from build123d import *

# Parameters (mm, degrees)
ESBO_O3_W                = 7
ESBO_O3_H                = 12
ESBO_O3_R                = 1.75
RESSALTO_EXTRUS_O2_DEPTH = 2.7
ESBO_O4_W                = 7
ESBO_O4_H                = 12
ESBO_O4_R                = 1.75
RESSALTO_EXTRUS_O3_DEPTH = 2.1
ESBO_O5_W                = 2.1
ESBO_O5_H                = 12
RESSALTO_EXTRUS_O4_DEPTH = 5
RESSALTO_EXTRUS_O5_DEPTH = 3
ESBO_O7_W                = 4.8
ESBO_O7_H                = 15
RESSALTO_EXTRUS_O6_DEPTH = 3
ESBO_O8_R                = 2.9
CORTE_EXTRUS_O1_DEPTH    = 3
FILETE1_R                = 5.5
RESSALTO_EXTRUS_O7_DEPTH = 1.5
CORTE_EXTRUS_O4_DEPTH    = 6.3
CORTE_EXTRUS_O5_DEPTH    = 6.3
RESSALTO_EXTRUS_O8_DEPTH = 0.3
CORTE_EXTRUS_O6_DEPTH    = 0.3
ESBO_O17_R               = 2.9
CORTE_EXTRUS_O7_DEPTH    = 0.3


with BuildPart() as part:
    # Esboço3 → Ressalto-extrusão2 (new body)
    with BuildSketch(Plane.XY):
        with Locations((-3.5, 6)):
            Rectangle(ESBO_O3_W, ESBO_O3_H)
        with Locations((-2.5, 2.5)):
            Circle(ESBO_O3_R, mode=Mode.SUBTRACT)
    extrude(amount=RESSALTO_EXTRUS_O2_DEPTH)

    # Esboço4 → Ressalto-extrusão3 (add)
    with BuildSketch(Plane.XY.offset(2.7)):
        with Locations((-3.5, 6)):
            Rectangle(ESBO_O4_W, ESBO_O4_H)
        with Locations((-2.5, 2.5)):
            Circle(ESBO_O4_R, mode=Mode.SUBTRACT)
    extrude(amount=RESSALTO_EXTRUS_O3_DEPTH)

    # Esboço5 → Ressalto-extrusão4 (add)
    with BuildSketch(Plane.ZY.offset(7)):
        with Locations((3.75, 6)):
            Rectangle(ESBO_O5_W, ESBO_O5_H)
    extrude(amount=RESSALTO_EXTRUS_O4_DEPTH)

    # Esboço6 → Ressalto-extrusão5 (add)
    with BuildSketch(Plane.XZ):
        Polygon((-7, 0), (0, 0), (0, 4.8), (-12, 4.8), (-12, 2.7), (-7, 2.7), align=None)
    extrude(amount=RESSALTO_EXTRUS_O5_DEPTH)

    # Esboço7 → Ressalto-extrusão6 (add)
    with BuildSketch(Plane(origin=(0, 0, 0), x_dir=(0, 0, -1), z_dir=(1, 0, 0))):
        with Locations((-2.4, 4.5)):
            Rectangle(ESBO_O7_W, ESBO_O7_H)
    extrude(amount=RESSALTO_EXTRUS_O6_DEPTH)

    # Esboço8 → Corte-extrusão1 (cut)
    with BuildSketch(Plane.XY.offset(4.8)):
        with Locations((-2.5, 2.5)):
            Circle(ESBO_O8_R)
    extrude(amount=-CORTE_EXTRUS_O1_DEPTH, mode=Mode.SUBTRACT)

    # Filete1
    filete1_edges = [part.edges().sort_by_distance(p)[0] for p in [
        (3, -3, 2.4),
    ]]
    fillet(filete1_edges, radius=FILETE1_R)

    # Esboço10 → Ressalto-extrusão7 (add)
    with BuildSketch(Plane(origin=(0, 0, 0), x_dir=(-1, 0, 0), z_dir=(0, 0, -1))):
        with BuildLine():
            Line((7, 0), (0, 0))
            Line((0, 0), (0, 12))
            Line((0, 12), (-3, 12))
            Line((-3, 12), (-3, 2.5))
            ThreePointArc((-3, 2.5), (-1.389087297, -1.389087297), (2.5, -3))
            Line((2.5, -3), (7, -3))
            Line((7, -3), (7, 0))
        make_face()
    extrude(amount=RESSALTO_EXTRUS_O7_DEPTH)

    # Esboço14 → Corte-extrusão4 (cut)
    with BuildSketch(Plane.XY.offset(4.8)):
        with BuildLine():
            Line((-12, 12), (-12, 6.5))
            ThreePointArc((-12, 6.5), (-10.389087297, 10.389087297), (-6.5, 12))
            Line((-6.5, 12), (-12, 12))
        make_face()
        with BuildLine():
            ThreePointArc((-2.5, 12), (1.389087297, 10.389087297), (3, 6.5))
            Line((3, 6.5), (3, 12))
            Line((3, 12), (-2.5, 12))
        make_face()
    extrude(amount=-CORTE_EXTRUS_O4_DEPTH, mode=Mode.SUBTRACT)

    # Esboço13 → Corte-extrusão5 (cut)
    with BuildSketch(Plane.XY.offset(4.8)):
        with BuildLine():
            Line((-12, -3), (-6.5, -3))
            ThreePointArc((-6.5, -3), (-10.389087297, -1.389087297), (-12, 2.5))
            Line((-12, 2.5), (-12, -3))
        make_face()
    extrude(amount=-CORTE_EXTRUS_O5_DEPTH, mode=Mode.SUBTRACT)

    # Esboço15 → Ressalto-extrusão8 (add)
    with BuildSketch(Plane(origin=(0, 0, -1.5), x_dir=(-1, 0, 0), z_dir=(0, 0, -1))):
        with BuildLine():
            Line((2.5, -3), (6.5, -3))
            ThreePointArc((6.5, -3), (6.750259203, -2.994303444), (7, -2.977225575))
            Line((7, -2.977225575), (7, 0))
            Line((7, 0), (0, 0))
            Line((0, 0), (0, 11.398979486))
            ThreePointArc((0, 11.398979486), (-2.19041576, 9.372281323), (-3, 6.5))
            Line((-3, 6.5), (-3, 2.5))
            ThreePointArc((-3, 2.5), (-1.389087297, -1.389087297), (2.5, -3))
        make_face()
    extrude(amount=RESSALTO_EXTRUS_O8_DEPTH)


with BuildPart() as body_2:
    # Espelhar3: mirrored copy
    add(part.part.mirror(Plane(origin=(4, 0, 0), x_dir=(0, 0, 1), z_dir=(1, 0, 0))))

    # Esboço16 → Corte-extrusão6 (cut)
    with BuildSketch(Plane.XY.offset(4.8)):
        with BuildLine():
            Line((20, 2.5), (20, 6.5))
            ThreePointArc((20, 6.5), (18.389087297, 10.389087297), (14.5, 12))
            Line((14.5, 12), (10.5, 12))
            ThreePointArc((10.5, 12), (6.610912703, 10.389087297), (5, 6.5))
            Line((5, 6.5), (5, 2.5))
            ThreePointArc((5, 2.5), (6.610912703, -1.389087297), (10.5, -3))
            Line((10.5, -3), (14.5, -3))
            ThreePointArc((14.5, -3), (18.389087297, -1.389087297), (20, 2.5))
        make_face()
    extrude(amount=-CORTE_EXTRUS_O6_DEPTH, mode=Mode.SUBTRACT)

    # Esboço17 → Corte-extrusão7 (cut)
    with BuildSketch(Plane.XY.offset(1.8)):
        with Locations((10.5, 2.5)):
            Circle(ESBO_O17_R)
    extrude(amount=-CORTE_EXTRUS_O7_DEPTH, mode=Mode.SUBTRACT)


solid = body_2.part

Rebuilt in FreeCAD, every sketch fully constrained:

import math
import FreeCAD as App
import Part
import Sketcher

V = App.Vector
Q = App.Units.Quantity


def edges_at(feature, points):
    """Names of the edges that pass closest to the given points."""
    edges = feature.Shape.Edges
    near = lambda p: min(range(len(edges)), key=lambda i: edges[i].distToShape(Part.Vertex(*p))[0])
    return sorted({f"Edge{near(p) + 1}" for p in points})

doc = App.newDocument("Part")
params = doc.addObject("Spreadsheet::Sheet", "Params")
for row, (alias, value) in enumerate([
    ("sketch1_diameter", "3.5 mm"),
    ("sketch1_width", "7 mm"),
    ("sketch1_height", "12 mm"),
    ("pad1_length", "2.7 mm"),
    ("sketch2_diameter", "3.5 mm"),
    ("sketch2_width", "7 mm"),
    ("sketch2_height", "12 mm"),
    ("pad2_length", "2.1 mm"),
    ("sketch3_width", "12 mm"),
    ("sketch3_height", "2.1 mm"),
    ("pad3_length", "5 mm"),
    ("sketch4_width", "7 mm"),
    ("sketch4_width2", "12 mm"),
    ("sketch4_height", "4.8 mm"),
    ("sketch4_height2", "2.1 mm"),
    ("pad4_length", "3 mm"),
    ("sketch5_width", "15 mm"),
    ("sketch5_height", "4.8 mm"),
    ("pad5_length", "3 mm"),
    ("sketch6_diameter", "5.8 mm"),
    ("pocket1_length", "3 mm"),
    ("fillet_radius", "5.5 mm"),
    ("sketch7_radius", "5.5 mm"),
    ("sketch7_width", "7 mm"),
    ("sketch7_width2", "3 mm"),
    ("sketch7_height", "12 mm"),
    ("pad6_length", "1.5 mm"),
    ("sketch8_radius", "5.5 mm"),
    ("pocket2_length", "6.3 mm"),
    ("sketch9_radius", "5.5 mm"),
    ("pocket3_length", "6.3 mm"),
    ("sketch10_radius", "5.5 mm"),
    ("sketch10_width", "4 mm"),
    ("sketch10_width2", "7 mm"),
    ("pad7_length", "0.3 mm"),
    ("sketch11_radius", "5.5 mm"),
    ("sketch11_width", "4 mm"),
    ("pocket4_length", "0.3 mm"),
    ("sketch12_diameter", "5.8 mm"),
    ("pocket5_length", "0.3 mm"),
], start=1):
    params.set(f"A{row}", alias)
    params.set(f"B{row}", "=" + value)
    params.setAlias(f"B{row}", alias)

body = doc.addObject("PartDesign::Body", "Body")

sketch1 = body.newObject("Sketcher::SketchObject", "Sketch")
sketch1.AttachmentSupport = (doc.getObject("XY_Plane"), [""])
sketch1.MapMode = "FlatFace"
sketch1.addGeometry([
    Part.LineSegment(V(-7, 12, 0), V(-7, 0, 0)),
    Part.LineSegment(V(-7, 0, 0), V(0, 0, 0)),
    Part.LineSegment(V(0, 0, 0), V(0, 12, 0)),
    Part.LineSegment(V(0, 12, 0), V(-7, 12, 0)),
    Part.Circle(V(-2.5, 2.5, 0), V(0, 0, 1), 1.8),
], False)
sketch1.addConstraint([
    Sketcher.Constraint("Coincident", 0, 2, 1, 1),
    Sketcher.Constraint("Coincident", 1, 2, 2, 1),
    Sketcher.Constraint("Coincident", 2, 2, 3, 1),
    Sketcher.Constraint("Coincident", 3, 2, 0, 1),
    Sketcher.Constraint("Vertical", 0),
    Sketcher.Constraint("Horizontal", 1),
    Sketcher.Constraint("Vertical", 2),
    Sketcher.Constraint("Horizontal", 3),
    Sketcher.Constraint("Coincident", 1, 2, -1, 1),
    Sketcher.Constraint("Diameter", 4, Q("3.5 mm")),
    Sketcher.Constraint("DistanceX", 1, 1, 1, 2, Q("7 mm")),
    Sketcher.Constraint("DistanceY", 0, 2, 0, 1, Q("12 mm")),
    Sketcher.Constraint("DistanceX", 4, 3, -1, 1, Q("2.5 mm")),
    Sketcher.Constraint("DistanceY", -1, 1, 4, 3, Q("2.5 mm")),
])
sketch1.setExpression("Constraints[9]", "Params.sketch1_diameter")
sketch1.setExpression("Constraints[10]", "Params.sketch1_width")
sketch1.setExpression("Constraints[11]", "Params.sketch1_height")
pad1 = body.newObject("PartDesign::Pad", "Pad")
pad1.Profile = sketch1
pad1.setExpression("Length", "Params.pad1_length")

sketch2 = body.newObject("Sketcher::SketchObject", "Sketch001")
sketch2.AttachmentSupport = (doc.getObject("XY_Plane"), [""])
sketch2.MapMode = "FlatFace"
sketch2.AttachmentOffset = App.Placement(V(0, 0, 2.7), App.Rotation())
sketch2.addGeometry([
    Part.LineSegment(V(-7, 12, 0), V(-7, 0, 0)),
    Part.LineSegment(V(-7, 0, 0), V(0, 0, 0)),
    Part.LineSegment(V(0, 0, 0), V(0, 12, 0)),
    Part.LineSegment(V(0, 12, 0), V(-7, 12, 0)),
    Part.Circle(V(-2.5, 2.5, 0), V(0, 0, 1), 1.8),
], False)
sketch2.addConstraint([
    Sketcher.Constraint("Coincident", 0, 2, 1, 1),
    Sketcher.Constraint("Coincident", 1, 2, 2, 1),
    Sketcher.Constraint("Coincident", 2, 2, 3, 1),
    Sketcher.Constraint("Coincident", 3, 2, 0, 1),
    Sketcher.Constraint("Vertical", 0),
    Sketcher.Constraint("Horizontal", 1),
    Sketcher.Constraint("Vertical", 2),
    Sketcher.Constraint("Horizontal", 3),
    Sketcher.Constraint("Coincident", 1, 2, -1, 1),
    Sketcher.Constraint("Diameter", 4, Q("3.5 mm")),
    Sketcher.Constraint("DistanceX", 1, 1, 1, 2, Q("7 mm")),
    Sketcher.Constraint("DistanceY", 0, 2, 0, 1, Q("12 mm")),
    Sketcher.Constraint("DistanceX", 4, 3, -1, 1, Q("2.5 mm")),
    Sketcher.Constraint("DistanceY", -1, 1, 4, 3, Q("2.5 mm")),
])
sketch2.setExpression("Constraints[9]", "Params.sketch2_diameter")
sketch2.setExpression("Constraints[10]", "Params.sketch2_width")
sketch2.setExpression("Constraints[11]", "Params.sketch2_height")
pad2 = body.newObject("PartDesign::Pad", "Pad001")
pad2.Profile = sketch2
pad2.setExpression("Length", "Params.pad2_length")

sketch3 = body.newObject("Sketcher::SketchObject", "Sketch002")
sketch3.AttachmentSupport = (doc.getObject("YZ_Plane"), [""])
sketch3.MapMode = "FlatFace"
sketch3.AttachmentOffset = App.Placement(V(0, 0, -7), App.Rotation())
sketch3.addGeometry([
    Part.LineSegment(V(12, 2.7, 0), V(0, 2.7, 0)),
    Part.LineSegment(V(0, 2.7, 0), V(0, 4.8, 0)),
    Part.LineSegment(V(0, 4.8, 0), V(12, 4.8, 0)),
    Part.LineSegment(V(12, 4.8, 0), V(12, 2.7, 0)),
], False)
sketch3.addConstraint([
    Sketcher.Constraint("Coincident", 0, 2, 1, 1),
    Sketcher.Constraint("Coincident", 1, 2, 2, 1),
    Sketcher.Constraint("Coincident", 2, 2, 3, 1),
    Sketcher.Constraint("Coincident", 3, 2, 0, 1),
    Sketcher.Constraint("Horizontal", 0),
    Sketcher.Constraint("Vertical", 1),
    Sketcher.Constraint("Horizontal", 2),
    Sketcher.Constraint("Vertical", 3),
    Sketcher.Constraint("PointOnObject", 0, 2, -2),
    Sketcher.Constraint("DistanceX", 0, 2, 0, 1, Q("12 mm")),
    Sketcher.Constraint("DistanceY", 1, 1, 1, 2, Q("2.1 mm")),
    Sketcher.Constraint("DistanceY", -1, 1, 0, 2, Q("2.7 mm")),
])
sketch3.setExpression("Constraints[9]", "Params.sketch3_width")
sketch3.setExpression("Constraints[10]", "Params.sketch3_height")
pad3 = body.newObject("PartDesign::Pad", "Pad002")
pad3.Profile = sketch3
pad3.setExpression("Length", "Params.pad3_length")
pad3.Reversed = True

sketch4 = body.newObject("Sketcher::SketchObject", "Sketch003")
sketch4.AttachmentSupport = (doc.getObject("XZ_Plane"), [""])
sketch4.MapMode = "FlatFace"
sketch4.addGeometry([
    Part.LineSegment(V(-7, 0, 0), V(0, 0, 0)),
    Part.LineSegment(V(0, 0, 0), V(0, 4.8, 0)),
    Part.LineSegment(V(0, 4.8, 0), V(-12, 4.8, 0)),
    Part.LineSegment(V(-12, 4.8, 0), V(-12, 2.7, 0)),
    Part.LineSegment(V(-12, 2.7, 0), V(-7, 2.7, 0)),
    Part.LineSegment(V(-7, 2.7, 0), V(-7, 0, 0)),
], False)
sketch4.addConstraint([
    Sketcher.Constraint("Coincident", 0, 2, 1, 1),
    Sketcher.Constraint("Coincident", 1, 2, 2, 1),
    Sketcher.Constraint("Coincident", 2, 2, 3, 1),
    Sketcher.Constraint("Coincident", 3, 2, 4, 1),
    Sketcher.Constraint("Coincident", 4, 2, 5, 1),
    Sketcher.Constraint("Coincident", 5, 2, 0, 1),
    Sketcher.Constraint("Horizontal", 0),
    Sketcher.Constraint("Vertical", 1),
    Sketcher.Constraint("Horizontal", 2),
    Sketcher.Constraint("Vertical", 3),
    Sketcher.Constraint("Horizontal", 4),
    Sketcher.Constraint("Vertical", 5),
    Sketcher.Constraint("Coincident", 0, 2, -1, 1),
    Sketcher.Constraint("DistanceX", 0, 1, 0, 2, Q("7 mm")),
    Sketcher.Constraint("DistanceX", 2, 2, 2, 1, Q("12 mm")),
    Sketcher.Constraint("DistanceY", 1, 1, 1, 2, Q("4.8 mm")),
    Sketcher.Constraint("DistanceY", 3, 2, 3, 1, Q("2.1 mm")),
])
sketch4.setExpression("Constraints[13]", "Params.sketch4_width")
sketch4.setExpression("Constraints[14]", "Params.sketch4_width2")
sketch4.setExpression("Constraints[15]", "Params.sketch4_height")
sketch4.setExpression("Constraints[16]", "Params.sketch4_height2")
pad4 = body.newObject("PartDesign::Pad", "Pad003")
pad4.Profile = sketch4
pad4.setExpression("Length", "Params.pad4_length")

sketch5 = body.newObject("Sketcher::SketchObject", "Sketch004")
sketch5.AttachmentSupport = (doc.getObject("YZ_Plane"), [""])
sketch5.MapMode = "FlatFace"
sketch5.addGeometry([
    Part.LineSegment(V(12, 4.8, 0), V(-3, 4.8, 0)),
    Part.LineSegment(V(-3, 4.8, 0), V(-3, 0, 0)),
    Part.LineSegment(V(-3, 0, 0), V(12, 0, 0)),
    Part.LineSegment(V(12, 0, 0), V(12, 4.8, 0)),
], False)
sketch5.addConstraint([
    Sketcher.Constraint("Coincident", 0, 2, 1, 1),
    Sketcher.Constraint("Coincident", 1, 2, 2, 1),
    Sketcher.Constraint("Coincident", 2, 2, 3, 1),
    Sketcher.Constraint("Coincident", 3, 2, 0, 1),
    Sketcher.Constraint("Horizontal", 0),
    Sketcher.Constraint("Vertical", 1),
    Sketcher.Constraint("Horizontal", 2),
    Sketcher.Constraint("Vertical", 3),
    Sketcher.Constraint("PointOnObject", 1, 2, -1),
    Sketcher.Constraint("DistanceX", 0, 2, 0, 1, Q("15 mm")),
    Sketcher.Constraint("DistanceY", 1, 2, 1, 1, Q("4.8 mm")),
    Sketcher.Constraint("DistanceX", 0, 2, -1, 1, Q("3 mm")),
])
sketch5.setExpression("Constraints[9]", "Params.sketch5_width")
sketch5.setExpression("Constraints[10]", "Params.sketch5_height")
pad5 = body.newObject("PartDesign::Pad", "Pad004")
pad5.Profile = sketch5
pad5.setExpression("Length", "Params.pad5_length")

sketch6 = body.newObject("Sketcher::SketchObject", "Sketch005")
sketch6.AttachmentSupport = (doc.getObject("XY_Plane"), [""])
sketch6.MapMode = "FlatFace"
sketch6.AttachmentOffset = App.Placement(V(0, 0, 4.8), App.Rotation())
sketch6.addGeometry(Part.Circle(V(-2.5, 2.5, 0), V(0, 0, 1), 2.9), False)
sketch6.addConstraint([
    Sketcher.Constraint("Diameter", 0, Q("5.8 mm")),
    Sketcher.Constraint("DistanceX", 0, 3, -1, 1, Q("2.5 mm")),
    Sketcher.Constraint("DistanceY", -1, 1, 0, 3, Q("2.5 mm")),
])
sketch6.setExpression("Constraints[0]", "Params.sketch6_diameter")
pocket1 = body.newObject("PartDesign::Pocket", "Pocket")
pocket1.Profile = sketch6
pocket1.setExpression("Length", "Params.pocket1_length")
doc.recompute()

fillet = body.newObject("PartDesign::Fillet", "Fillet")
fillet.Base = (pocket1, edges_at(pocket1, [(3, -3, 2.4)]))
fillet.setExpression("Radius", "Params.fillet_radius")

sketch7 = body.newObject("Sketcher::SketchObject", "Sketch006")
sketch7.AttachmentSupport = (doc.getObject("XY_Plane"), [""])
sketch7.MapMode = "FlatFace"
sketch7.addGeometry([
    Part.LineSegment(V(-7, 0, 0), V(0, 0, 0)),
    Part.LineSegment(V(0, 0, 0), V(0, 12, 0)),
    Part.LineSegment(V(0, 12, 0), V(3, 12, 0)),
    Part.LineSegment(V(3, 12, 0), V(3, 2.5, 0)),
    Part.ArcOfCircle(Part.Circle(V(-2.5, 2.5, 0), V(0, 0, 1), 5.5), math.radians(-90), math.radians(0)),
    Part.LineSegment(V(-2.5, -3, 0), V(-7, -3, 0)),
    Part.LineSegment(V(-7, -3, 0), V(-7, 0, 0)),
], False)
sketch7.addConstraint([
    Sketcher.Constraint("Coincident", 0, 2, 1, 1),
    Sketcher.Constraint("Coincident", 1, 2, 2, 1),
    Sketcher.Constraint("Coincident", 2, 2, 3, 1),
    Sketcher.Constraint("Tangent", 3, 2, 4, 2),
    Sketcher.Constraint("Tangent", 4, 1, 5, 1),
    Sketcher.Constraint("Coincident", 5, 2, 6, 1),
    Sketcher.Constraint("Coincident", 6, 2, 0, 1),
    Sketcher.Constraint("Horizontal", 0),
    Sketcher.Constraint("Vertical", 1),
    Sketcher.Constraint("Horizontal", 2),
    Sketcher.Constraint("Vertical", 3),
    Sketcher.Constraint("Horizontal", 5),
    Sketcher.Constraint("Vertical", 6),
    Sketcher.Constraint("Coincident", 0, 2, -1, 1),
    Sketcher.Constraint("Equal", 2, 6),
    Sketcher.Constraint("Radius", 4, Q("5.5 mm")),
    Sketcher.Constraint("DistanceX", 0, 1, 0, 2, Q("7 mm")),
    Sketcher.Constraint("DistanceX", 2, 1, 2, 2, Q("3 mm")),
    Sketcher.Constraint("DistanceY", 1, 1, 1, 2, Q("12 mm")),
])
sketch7.setExpression("Constraints[15]", "Params.sketch7_radius")
sketch7.setExpression("Constraints[16]", "Params.sketch7_width")
sketch7.setExpression("Constraints[17]", "Params.sketch7_width2")
sketch7.setExpression("Constraints[18]", "Params.sketch7_height")
pad6 = body.newObject("PartDesign::Pad", "Pad005")
pad6.Profile = sketch7
pad6.setExpression("Length", "Params.pad6_length")
pad6.Reversed = True

sketch8 = body.newObject("Sketcher::SketchObject", "Sketch007")
sketch8.AttachmentSupport = (doc.getObject("XY_Plane"), [""])
sketch8.MapMode = "FlatFace"
sketch8.AttachmentOffset = App.Placement(V(0, 0, 4.8), App.Rotation())
sketch8.addGeometry([
    Part.LineSegment(V(-12, 12, 0), V(-12, 6, 0)),
    Part.ArcOfCircle(Part.Circle(V(-7, 7, 0), V(0, 0, 1), 5), math.radians(90), math.radians(180)),
    Part.LineSegment(V(-6, 12, 0), V(-12, 12, 0)),
    Part.ArcOfCircle(Part.Circle(V(-2, 7, 0), V(0, 0, 1), 5), math.radians(0), math.radians(90)),
    Part.LineSegment(V(3, 6, 0), V(3, 12, 0)),
    Part.LineSegment(V(3, 12, 0), V(-2, 12, 0)),
], False)
sketch8.addConstraint([
    Sketcher.Constraint("Tangent", 0, 2, 1, 2),
    Sketcher.Constraint("Tangent", 1, 1, 2, 1),
    Sketcher.Constraint("Coincident", 2, 2, 0, 1),
    Sketcher.Constraint("Tangent", 3, 1, 4, 1),
    Sketcher.Constraint("Coincident", 4, 2, 5, 1),
    Sketcher.Constraint("Tangent", 5, 2, 3, 2),
    Sketcher.Constraint("Vertical", 0),
    Sketcher.Constraint("Horizontal", 2),
    Sketcher.Constraint("Vertical", 4),
    Sketcher.Constraint("Horizontal", 5),
    Sketcher.Constraint("Equal", 1, 3),
    Sketcher.Constraint("Horizontal", 1, 3, 3, 3),
    Sketcher.Constraint("Radius", 1, Q("5.5 mm")),
    Sketcher.Constraint("DistanceX", 0, 2, -1, 1, Q("12 mm")),
    Sketcher.Constraint("DistanceY", -1, 1, 1, 1, Q("12 mm")),
    Sketcher.Constraint("DistanceX", -1, 1, 3, 1, Q("3 mm")),
])
sketch8.setExpression("Constraints[12]", "Params.sketch8_radius")
pocket2 = body.newObject("PartDesign::Pocket", "Pocket001")
pocket2.Profile = sketch8
pocket2.setExpression("Length", "Params.pocket2_length")

sketch9 = body.newObject("Sketcher::SketchObject", "Sketch008")
sketch9.AttachmentSupport = (doc.getObject("XY_Plane"), [""])
sketch9.MapMode = "FlatFace"
sketch9.AttachmentOffset = App.Placement(V(0, 0, 4.8), App.Rotation())
sketch9.addGeometry([
    Part.LineSegment(V(-12, -3, 0), V(-6, -3, 0)),
    Part.ArcOfCircle(Part.Circle(V(-7, 2, 0), V(0, 0, 1), 5), math.radians(180), math.radians(270)),
    Part.LineSegment(V(-12, 2, 0), V(-12, -3, 0)),
], False)
sketch9.addConstraint([
    Sketcher.Constraint("Tangent", 0, 2, 1, 2),
    Sketcher.Constraint("Tangent", 1, 1, 2, 1),
    Sketcher.Constraint("Coincident", 2, 2, 0, 1),
    Sketcher.Constraint("Horizontal", 0),
    Sketcher.Constraint("Vertical", 2),
    Sketcher.Constraint("Radius", 1, Q("5.5 mm")),
    Sketcher.Constraint("DistanceY", 0, 2, -1, 1, Q("3 mm")),
    Sketcher.Constraint("DistanceX", 1, 1, -1, 1, Q("12 mm")),
])
sketch9.setExpression("Constraints[5]", "Params.sketch9_radius")
pocket3 = body.newObject("PartDesign::Pocket", "Pocket002")
pocket3.Profile = sketch9
pocket3.setExpression("Length", "Params.pocket3_length")

sketch10 = body.newObject("Sketcher::SketchObject", "Sketch009")
sketch10.AttachmentSupport = (doc.getObject("XY_Plane"), [""])
sketch10.MapMode = "FlatFace"
sketch10.AttachmentOffset = App.Placement(V(0, 0, -1.5), App.Rotation())
sketch10.addGeometry([
    Part.LineSegment(V(-2.5, -3, 0), V(-6.5, -3, 0)),
    Part.ArcOfCircle(Part.Circle(V(-6.5, 2.5, 0), V(0, 0, 1), 5.5), math.radians(-95.22), math.radians(-90)),
    Part.LineSegment(V(-7, -3, 0), V(-7, 0, 0)),
    Part.LineSegment(V(-7, 0, 0), V(0, 0, 0)),
    Part.LineSegment(V(0, 0, 0), V(0, 11.4, 0)),
    Part.ArcOfCircle(Part.Circle(V(-2.5, 6.5, 0), V(0, 0, 1), 5.5), math.radians(0), math.radians(63)),
    Part.LineSegment(V(3, 6.5, 0), V(3, 2.5, 0)),
    Part.ArcOfCircle(Part.Circle(V(-2.5, 2.5, 0), V(0, 0, 1), 5.5), math.radians(-90), math.radians(0)),
], False)
sketch10.addConstraint([
    Sketcher.Constraint("Tangent", 0, 2, 1, 2),
    Sketcher.Constraint("Coincident", 1, 1, 2, 1),
    Sketcher.Constraint("Coincident", 2, 2, 3, 1),
    Sketcher.Constraint("Coincident", 3, 2, 4, 1),
    Sketcher.Constraint("Coincident", 4, 2, 5, 2),
    Sketcher.Constraint("Tangent", 5, 1, 6, 1),
    Sketcher.Constraint("Tangent", 6, 2, 7, 2),
    Sketcher.Constraint("Tangent", 7, 1, 0, 1),
    Sketcher.Constraint("Horizontal", 0),
    Sketcher.Constraint("Vertical", 2),
    Sketcher.Constraint("Horizontal", 3),
    Sketcher.Constraint("Vertical", 4),
    Sketcher.Constraint("Vertical", 6),
    Sketcher.Constraint("Coincident", 3, 2, -1, 1),
    Sketcher.Constraint("Equal", 1, 5),
    Sketcher.Constraint("Equal", 5, 7),
    Sketcher.Constraint("Equal", 0, 6),
    Sketcher.Constraint("Radius", 1, Q("5.5 mm")),
    Sketcher.Constraint("DistanceX", 0, 2, 0, 1, Q("4 mm")),
    Sketcher.Constraint("DistanceX", 3, 1, 3, 2, Q("7 mm")),
    Sketcher.Constraint("DistanceY", 0, 2, -1, 1, Q("3 mm")),
    Sketcher.Constraint("DistanceX", -1, 1, 5, 1, Q("3 mm")),
])
sketch10.setExpression("Constraints[17]", "Params.sketch10_radius")
sketch10.setExpression("Constraints[18]", "Params.sketch10_width")
sketch10.setExpression("Constraints[19]", "Params.sketch10_width2")
pad7 = body.newObject("PartDesign::Pad", "Pad006")
pad7.Profile = sketch10
pad7.setExpression("Length", "Params.pad7_length")
pad7.Reversed = True
body2 = doc.addObject("PartDesign::Body", "Body001")
doc.recompute()

mirroring = doc.addObject("Part::Mirroring", "Mirroring")
mirroring.Source = body
mirroring.Base = V(4, 0, 0)
mirroring.Normal = V(1, 0, 0)
body2.BaseFeature = mirroring
doc.recompute()

sketch11 = body2.newObject("Sketcher::SketchObject", "Sketch010")
sketch11.AttachmentSupport = (doc.getObject("XY_Plane001"), [""])
sketch11.MapMode = "FlatFace"
sketch11.AttachmentOffset = App.Placement(V(0, 0, 4.8), App.Rotation())
sketch11.addGeometry([
    Part.LineSegment(V(20, 2.5, 0), V(20, 6.5, 0)),
    Part.ArcOfCircle(Part.Circle(V(14.5, 6.5, 0), V(0, 0, 1), 5.5), math.radians(0), math.radians(90)),
    Part.LineSegment(V(14.5, 12, 0), V(10.5, 12, 0)),
    Part.ArcOfCircle(Part.Circle(V(10.5, 6.5, 0), V(0, 0, 1), 5.5), math.radians(90), math.radians(180)),
    Part.LineSegment(V(5, 6.5, 0), V(5, 2.5, 0)),
    Part.ArcOfCircle(Part.Circle(V(10.5, 2.5, 0), V(0, 0, 1), 5.5), math.radians(180), math.radians(270)),
    Part.LineSegment(V(10.5, -3, 0), V(14.5, -3, 0)),
    Part.ArcOfCircle(Part.Circle(V(14.5, 2.5, 0), V(0, 0, 1), 5.5), math.radians(-90), math.radians(0)),
], False)
sketch11.addConstraint([
    Sketcher.Constraint("Tangent", 0, 2, 1, 1),
    Sketcher.Constraint("Tangent", 1, 2, 2, 1),
    Sketcher.Constraint("Tangent", 2, 2, 3, 1),
    Sketcher.Constraint("Tangent", 3, 2, 4, 1),
    Sketcher.Constraint("Tangent", 4, 2, 5, 1),
    Sketcher.Constraint("Tangent", 5, 2, 6, 1),
    Sketcher.Constraint("Tangent", 6, 2, 7, 1),
    Sketcher.Constraint("Tangent", 7, 2, 0, 1),
    Sketcher.Constraint("Vertical", 0),
    Sketcher.Constraint("Horizontal", 2),
    Sketcher.Constraint("Vertical", 4),
    Sketcher.Constraint("Horizontal", 6),
    Sketcher.Constraint("Equal", 1, 3),
    Sketcher.Constraint("Equal", 3, 5),
    Sketcher.Constraint("Equal", 5, 7),
    Sketcher.Constraint("Equal", 6, 0),
    Sketcher.Constraint("Radius", 1, Q("5.5 mm")),
    Sketcher.Constraint("DistanceX", 2, 2, 2, 1, Q("4 mm")),
    Sketcher.Constraint("DistanceX", -1, 1, 0, 2, Q("20 mm")),
    Sketcher.Constraint("DistanceY", -1, 1, 1, 2, Q("12 mm")),
])
sketch11.setExpression("Constraints[16]", "Params.sketch11_radius")
sketch11.setExpression("Constraints[17]", "Params.sketch11_width")
pocket4 = body2.newObject("PartDesign::Pocket", "Pocket003")
pocket4.Profile = sketch11
pocket4.setExpression("Length", "Params.pocket4_length")

sketch12 = body2.newObject("Sketcher::SketchObject", "Sketch011")
sketch12.AttachmentSupport = (doc.getObject("XY_Plane001"), [""])
sketch12.MapMode = "FlatFace"
sketch12.AttachmentOffset = App.Placement(V(0, 0, 1.8), App.Rotation())
sketch12.addGeometry(Part.Circle(V(10.5, 2.5, 0), V(0, 0, 1), 2.9), False)
sketch12.addConstraint([
    Sketcher.Constraint("Diameter", 0, Q("5.8 mm")),
    Sketcher.Constraint("DistanceX", -1, 1, 0, 3, Q("10.5 mm")),
    Sketcher.Constraint("DistanceY", -1, 1, 0, 3, Q("2.5 mm")),
])
sketch12.setExpression("Constraints[0]", "Params.sketch12_diameter")
pocket5 = body2.newObject("PartDesign::Pocket", "Pocket004")
pocket5.Profile = sketch12
pocket5.setExpression("Length", "Params.pocket5_length")
body.Visibility = False
mirroring.Visibility = False

doc.recompute()
